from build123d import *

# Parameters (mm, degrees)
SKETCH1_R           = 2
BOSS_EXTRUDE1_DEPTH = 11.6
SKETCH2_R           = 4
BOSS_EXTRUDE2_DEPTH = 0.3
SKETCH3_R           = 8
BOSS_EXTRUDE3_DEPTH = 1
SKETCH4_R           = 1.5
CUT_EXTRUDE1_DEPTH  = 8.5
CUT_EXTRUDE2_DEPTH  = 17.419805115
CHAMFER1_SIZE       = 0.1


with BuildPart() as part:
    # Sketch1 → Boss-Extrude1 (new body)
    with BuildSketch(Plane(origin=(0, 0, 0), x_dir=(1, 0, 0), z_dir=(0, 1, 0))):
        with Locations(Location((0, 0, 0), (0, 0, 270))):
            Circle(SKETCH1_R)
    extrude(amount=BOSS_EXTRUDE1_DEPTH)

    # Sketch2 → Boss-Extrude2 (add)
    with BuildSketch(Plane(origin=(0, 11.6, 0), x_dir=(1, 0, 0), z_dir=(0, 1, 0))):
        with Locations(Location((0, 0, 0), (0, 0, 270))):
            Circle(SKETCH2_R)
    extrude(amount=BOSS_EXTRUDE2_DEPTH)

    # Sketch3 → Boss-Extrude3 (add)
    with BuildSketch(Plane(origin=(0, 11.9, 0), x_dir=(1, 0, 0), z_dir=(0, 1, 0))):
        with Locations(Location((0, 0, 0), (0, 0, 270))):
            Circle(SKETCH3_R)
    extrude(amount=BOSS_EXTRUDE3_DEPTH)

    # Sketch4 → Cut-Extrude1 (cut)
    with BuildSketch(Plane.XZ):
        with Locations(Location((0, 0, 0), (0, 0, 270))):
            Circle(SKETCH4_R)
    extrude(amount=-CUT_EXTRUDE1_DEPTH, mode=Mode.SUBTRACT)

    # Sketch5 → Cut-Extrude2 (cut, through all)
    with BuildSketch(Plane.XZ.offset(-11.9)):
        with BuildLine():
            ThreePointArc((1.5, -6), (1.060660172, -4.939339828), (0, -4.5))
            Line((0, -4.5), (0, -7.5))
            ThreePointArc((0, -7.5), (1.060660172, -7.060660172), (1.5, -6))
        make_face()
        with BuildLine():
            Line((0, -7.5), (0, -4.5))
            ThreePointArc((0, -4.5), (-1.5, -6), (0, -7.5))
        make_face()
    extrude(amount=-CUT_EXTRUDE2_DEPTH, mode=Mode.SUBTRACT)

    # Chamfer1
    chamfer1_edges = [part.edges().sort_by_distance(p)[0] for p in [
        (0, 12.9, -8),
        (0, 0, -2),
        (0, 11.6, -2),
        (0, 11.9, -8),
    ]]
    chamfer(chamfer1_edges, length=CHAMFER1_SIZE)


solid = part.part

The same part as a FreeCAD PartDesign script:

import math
import FreeCAD as App
import Part
import Sketcher
Q = App.Units.Quantity


def edges_at(feature, points):
    """Names of the edges that pass closest to the given points."""
    edges = feature.Shape.Edges
    near = lambda p: min(range(len(edges)), key=lambda i: edges[i].distToShape(Part.Vertex(*p))[0])
    return sorted({f"Edge{near(p) + 1}" for p in points})

doc = App.newDocument("Part")
body = doc.addObject("PartDesign::Body", "Body")

sketch1 = body.newObject("Sketcher::SketchObject", "Sketch")
sketch1.AttachmentSupport = (doc.getObject("XZ_Plane"), [""])
sketch1.MapMode = "FlatFace"
sketch1.addGeometry(Part.Circle(App.Vector(0, 0, 0), App.Vector(0, 0, 1), 2), False)
sketch1.addConstraint(Sketcher.Constraint("Coincident", 0, 3, -1, 1))
sketch1.addConstraint(Sketcher.Constraint("Diameter", 0, Q("4 mm")))
pad1 = body.newObject("PartDesign::Pad", "Pad")
pad1.Profile = sketch1
pad1.Length = 11.6
pad1.Reversed = True

sketch2 = body.newObject("Sketcher::SketchObject", "Sketch001")
sketch2.AttachmentSupport = (doc.getObject("XZ_Plane"), [""])
sketch2.MapMode = "FlatFace"
sketch2.AttachmentOffset = App.Placement(App.Vector(0, 0, -11.6), App.Rotation())
sketch2.addGeometry(Part.Circle(App.Vector(0, 0, 0), App.Vector(0, 0, 1), 4), False)
sketch2.addConstraint(Sketcher.Constraint("Coincident", 0, 3, -1, 1))
sketch2.addConstraint(Sketcher.Constraint("Diameter", 0, Q("8 mm")))
pad2 = body.newObject("PartDesign::Pad", "Pad001")
pad2.Profile = sketch2
pad2.Length = 0.3
pad2.Reversed = True

sketch3 = body.newObject("Sketcher::SketchObject", "Sketch002")
sketch3.AttachmentSupport = (doc.getObject("XZ_Plane"), [""])
sketch3.MapMode = "FlatFace"
sketch3.AttachmentOffset = App.Placement(App.Vector(0, 0, -11.9), App.Rotation())
sketch3.addGeometry(Part.Circle(App.Vector(0, 0, 0), App.Vector(0, 0, 1), 8), False)
sketch3.addConstraint(Sketcher.Constraint("Coincident", 0, 3, -1, 1))
sketch3.addConstraint(Sketcher.Constraint("Diameter", 0, Q("16 mm")))
pad3 = body.newObject("PartDesign::Pad", "Pad002")
pad3.Profile = sketch3
pad3.Length = 1
pad3.Reversed = True

sketch4 = body.newObject("Sketcher::SketchObject", "Sketch003")
sketch4.AttachmentSupport = (doc.getObject("XZ_Plane"), [""])
sketch4.MapMode = "FlatFace"
sketch4.addGeometry(Part.Circle(App.Vector(0, 0, 0), App.Vector(0, 0, 1), 1.5), False)
sketch4.addConstraint(Sketcher.Constraint("Coincident", 0, 3, -1, 1))
sketch4.addConstraint(Sketcher.Constraint("Diameter", 0, Q("3 mm")))
pocket1 = body.newObject("PartDesign::Pocket", "Pocket")
pocket1.Profile = sketch4
pocket1.Length = 8.5

sketch5 = body.newObject("Sketcher::SketchObject", "Sketch004")
sketch5.AttachmentSupport = (doc.getObject("XZ_Plane"), [""])
sketch5.MapMode = "FlatFace"
sketch5.AttachmentOffset = App.Placement(App.Vector(0, 0, -11.9), App.Rotation())
sketch5.addGeometry(Part.ArcOfCircle(Part.Circle(App.Vector(0, -6, 0), App.Vector(0, 0, 1), 1.5), math.radians(0), math.radians(90)), False)
sketch5.addGeometry(Part.ArcOfCircle(Part.Circle(App.Vector(0, -6, 0), App.Vector(0, 0, 1), 1.5), math.radians(90), math.radians(270)), False)
sketch5.addGeometry(Part.ArcOfCircle(Part.Circle(App.Vector(0, -6, 0), App.Vector(0, 0, 1), 1.5), math.radians(-90), math.radians(0)), False)
sketch5.addConstraint(Sketcher.Constraint("Tangent", 0, 2, 1, 1))
sketch5.addConstraint(Sketcher.Constraint("Tangent", 1, 2, 2, 1))
sketch5.addConstraint(Sketcher.Constraint("Tangent", 2, 2, 0, 1))
sketch5.addConstraint(Sketcher.Constraint("PointOnObject", 0, 3, -2))
sketch5.addConstraint(Sketcher.Constraint("PointOnObject", 0, 2, -2))
sketch5.addConstraint(Sketcher.Constraint("PointOnObject", 1, 2, -2))
sketch5.addConstraint(Sketcher.Constraint("Horizontal", 1, 3, 2, 2))
sketch5.addConstraint(Sketcher.Constraint("Radius", 0, Q("1.5 mm")))
sketch5.addConstraint(Sketcher.Constraint("DistanceY", 0, 3, -1, 1, Q("6 mm")))
pocket2 = body.newObject("PartDesign::Pocket", "Pocket001")
pocket2.Profile = sketch5
pocket2.Type = "ThroughAll"
doc.recompute()

chamfer = body.newObject("PartDesign::Chamfer", "Chamfer")
chamfer.Base = (pocket2, edges_at(pocket2, [
    (0, 12.9, -8),
    (0, 0, -2),
    (0, 11.6, -2),
    (0, 11.9, -8),
]))
chamfer.Size = 0.1

doc.recompute()
